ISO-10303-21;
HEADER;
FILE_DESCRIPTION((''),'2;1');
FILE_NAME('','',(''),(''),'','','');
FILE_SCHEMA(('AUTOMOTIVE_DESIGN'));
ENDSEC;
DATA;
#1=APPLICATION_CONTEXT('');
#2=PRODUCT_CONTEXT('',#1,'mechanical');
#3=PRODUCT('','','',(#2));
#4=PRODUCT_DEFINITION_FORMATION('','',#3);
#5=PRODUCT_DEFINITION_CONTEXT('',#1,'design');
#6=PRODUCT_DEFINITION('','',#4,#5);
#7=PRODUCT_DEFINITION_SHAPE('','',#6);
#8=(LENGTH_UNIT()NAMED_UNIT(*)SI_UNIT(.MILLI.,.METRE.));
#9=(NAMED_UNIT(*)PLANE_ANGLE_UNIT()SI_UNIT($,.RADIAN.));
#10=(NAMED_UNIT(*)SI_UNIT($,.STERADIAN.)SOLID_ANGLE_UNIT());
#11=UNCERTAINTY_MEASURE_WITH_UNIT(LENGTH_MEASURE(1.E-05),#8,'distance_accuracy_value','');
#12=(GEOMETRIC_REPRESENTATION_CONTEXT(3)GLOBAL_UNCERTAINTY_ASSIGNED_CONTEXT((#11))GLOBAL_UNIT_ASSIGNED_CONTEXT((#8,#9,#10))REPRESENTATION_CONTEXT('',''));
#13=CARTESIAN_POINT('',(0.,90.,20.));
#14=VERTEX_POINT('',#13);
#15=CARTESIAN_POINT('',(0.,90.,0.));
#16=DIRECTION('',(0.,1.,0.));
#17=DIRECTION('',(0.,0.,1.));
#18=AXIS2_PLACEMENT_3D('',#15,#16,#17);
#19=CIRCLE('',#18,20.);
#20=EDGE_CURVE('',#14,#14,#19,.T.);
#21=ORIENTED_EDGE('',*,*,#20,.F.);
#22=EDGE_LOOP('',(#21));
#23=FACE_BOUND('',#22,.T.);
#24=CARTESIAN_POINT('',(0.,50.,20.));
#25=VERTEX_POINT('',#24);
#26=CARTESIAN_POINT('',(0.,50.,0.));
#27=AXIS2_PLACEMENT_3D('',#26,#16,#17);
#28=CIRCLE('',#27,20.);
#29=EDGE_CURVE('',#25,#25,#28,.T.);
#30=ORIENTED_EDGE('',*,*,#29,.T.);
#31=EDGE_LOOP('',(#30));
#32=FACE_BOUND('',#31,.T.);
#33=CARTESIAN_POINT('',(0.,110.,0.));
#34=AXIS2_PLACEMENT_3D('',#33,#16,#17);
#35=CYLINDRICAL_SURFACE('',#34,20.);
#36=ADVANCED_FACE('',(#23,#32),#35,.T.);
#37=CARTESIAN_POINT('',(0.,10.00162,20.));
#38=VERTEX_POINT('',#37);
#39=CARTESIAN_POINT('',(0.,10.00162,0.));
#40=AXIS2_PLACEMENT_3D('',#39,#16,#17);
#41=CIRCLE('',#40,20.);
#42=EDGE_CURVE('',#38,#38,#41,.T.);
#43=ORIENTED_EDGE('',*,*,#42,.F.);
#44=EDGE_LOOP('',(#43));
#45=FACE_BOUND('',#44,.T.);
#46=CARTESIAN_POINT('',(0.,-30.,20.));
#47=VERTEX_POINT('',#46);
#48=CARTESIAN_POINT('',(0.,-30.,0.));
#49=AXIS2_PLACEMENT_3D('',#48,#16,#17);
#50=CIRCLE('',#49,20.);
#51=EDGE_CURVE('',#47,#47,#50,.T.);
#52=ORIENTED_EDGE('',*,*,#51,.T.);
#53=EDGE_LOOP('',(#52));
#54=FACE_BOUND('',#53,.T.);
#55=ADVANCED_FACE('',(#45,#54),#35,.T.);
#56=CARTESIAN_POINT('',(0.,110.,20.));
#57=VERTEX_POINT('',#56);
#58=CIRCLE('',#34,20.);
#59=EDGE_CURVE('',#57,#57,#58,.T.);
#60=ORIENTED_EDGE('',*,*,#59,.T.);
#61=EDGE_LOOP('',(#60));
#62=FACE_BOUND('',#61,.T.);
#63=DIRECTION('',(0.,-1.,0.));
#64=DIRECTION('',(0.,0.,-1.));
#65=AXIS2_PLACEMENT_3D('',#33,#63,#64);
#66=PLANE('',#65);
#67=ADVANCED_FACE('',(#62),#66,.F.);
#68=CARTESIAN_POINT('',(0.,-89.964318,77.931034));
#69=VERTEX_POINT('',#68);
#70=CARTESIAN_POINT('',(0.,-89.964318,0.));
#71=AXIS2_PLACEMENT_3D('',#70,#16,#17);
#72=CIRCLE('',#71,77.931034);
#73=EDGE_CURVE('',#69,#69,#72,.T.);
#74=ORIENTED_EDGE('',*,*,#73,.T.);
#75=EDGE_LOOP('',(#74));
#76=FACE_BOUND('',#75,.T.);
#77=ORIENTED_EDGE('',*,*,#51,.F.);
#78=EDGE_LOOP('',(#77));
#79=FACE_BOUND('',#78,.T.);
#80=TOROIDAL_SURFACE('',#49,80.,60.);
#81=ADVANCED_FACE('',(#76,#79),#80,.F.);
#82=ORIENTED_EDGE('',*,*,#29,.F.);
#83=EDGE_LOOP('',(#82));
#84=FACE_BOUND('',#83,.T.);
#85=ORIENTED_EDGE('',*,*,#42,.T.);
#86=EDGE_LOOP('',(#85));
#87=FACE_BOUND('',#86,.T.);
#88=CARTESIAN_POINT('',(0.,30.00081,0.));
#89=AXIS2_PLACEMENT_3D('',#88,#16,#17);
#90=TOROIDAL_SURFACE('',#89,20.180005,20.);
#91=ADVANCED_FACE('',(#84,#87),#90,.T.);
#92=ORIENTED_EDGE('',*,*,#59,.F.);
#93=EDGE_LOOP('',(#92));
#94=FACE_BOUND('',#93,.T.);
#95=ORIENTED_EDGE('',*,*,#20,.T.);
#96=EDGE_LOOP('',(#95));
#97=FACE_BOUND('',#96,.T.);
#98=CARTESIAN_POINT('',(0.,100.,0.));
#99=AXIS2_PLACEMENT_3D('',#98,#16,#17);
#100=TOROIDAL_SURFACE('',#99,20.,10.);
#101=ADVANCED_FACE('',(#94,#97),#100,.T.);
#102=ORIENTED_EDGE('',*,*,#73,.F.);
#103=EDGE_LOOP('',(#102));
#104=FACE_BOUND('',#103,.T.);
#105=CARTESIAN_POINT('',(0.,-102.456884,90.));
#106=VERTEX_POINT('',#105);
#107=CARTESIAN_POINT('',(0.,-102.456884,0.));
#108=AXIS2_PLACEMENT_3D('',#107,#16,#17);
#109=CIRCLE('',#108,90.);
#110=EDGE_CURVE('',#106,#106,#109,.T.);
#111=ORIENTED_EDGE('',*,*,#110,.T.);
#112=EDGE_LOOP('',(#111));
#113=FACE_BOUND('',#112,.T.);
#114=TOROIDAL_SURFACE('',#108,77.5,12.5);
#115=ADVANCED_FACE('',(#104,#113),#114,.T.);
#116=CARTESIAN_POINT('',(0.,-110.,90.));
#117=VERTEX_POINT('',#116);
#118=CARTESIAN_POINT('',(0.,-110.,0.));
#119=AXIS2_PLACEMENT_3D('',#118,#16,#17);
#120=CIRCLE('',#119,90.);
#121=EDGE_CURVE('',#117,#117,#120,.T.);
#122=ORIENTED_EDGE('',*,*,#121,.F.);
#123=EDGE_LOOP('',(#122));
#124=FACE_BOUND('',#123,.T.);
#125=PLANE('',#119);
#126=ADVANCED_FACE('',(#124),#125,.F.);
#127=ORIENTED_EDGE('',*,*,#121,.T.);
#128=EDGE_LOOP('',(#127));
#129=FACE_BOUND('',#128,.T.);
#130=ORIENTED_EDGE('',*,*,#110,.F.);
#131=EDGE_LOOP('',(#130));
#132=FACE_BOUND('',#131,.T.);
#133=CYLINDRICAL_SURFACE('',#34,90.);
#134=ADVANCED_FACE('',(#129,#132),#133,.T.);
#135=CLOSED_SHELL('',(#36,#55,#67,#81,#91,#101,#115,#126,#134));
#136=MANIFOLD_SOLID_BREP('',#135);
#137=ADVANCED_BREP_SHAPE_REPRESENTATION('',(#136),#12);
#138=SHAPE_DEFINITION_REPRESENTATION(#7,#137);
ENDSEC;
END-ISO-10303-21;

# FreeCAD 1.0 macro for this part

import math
import FreeCAD as App
import Part
import Sketcher
from FreeCAD import Vector
Q = App.Units.Quantity

doc = App.newDocument("Part")
body = doc.addObject("PartDesign::Body", "Body")

# Sketch on XY plane
sketch1 = body.newObject("Sketcher::SketchObject", "Sketch")
sketch1.AttachmentSupport = (doc.getObject("XY_Plane"), [""])
sketch1.MapMode = "FlatFace"
sketch1.addGeometry([
    Part.LineSegment(Vector(0, 110, 0), Vector(0, -110, 0)),  # 0
    Part.LineSegment(Vector(0, -110, 0), Vector(90, -110, 0)),  # 1
    Part.LineSegment(Vector(90, -110, 0), Vector(90, -102.456884, 0)),  # 2
    Part.ArcOfCircle(Part.Circle(Vector(77.5, -102.456884, 0), Vector(0, 0, 1), 12.5), math.radians(0), math.radians(88.023892)),  # 3
    Part.ArcOfCircle(Part.Circle(Vector(80, -30, 0), Vector(0, 0, 1), 60), math.radians(180), math.radians(268.023892)),  # 4
    Part.LineSegment(Vector(20, -30, 0), Vector(20, 10.00162, 0)),  # 5
    Part.ArcOfCircle(Part.Circle(Vector(20.180005, 30.00081, 0), Vector(0, 0, 1), 20), math.radians(-90.515683), math.radians(90.515683)),  # 6
    Part.LineSegment(Vector(20, 50, 0), Vector(20, 90, 0)),  # 7
    Part.ArcOfCircle(Part.Circle(Vector(20, 100, 0), Vector(0, 0, 1), 10), math.radians(-90), math.radians(90)),  # 8
    Part.LineSegment(Vector(20, 110, 0), Vector(0, 110, 0)),  # 9
], False)
sketch1.addConstraint([
    Sketcher.Constraint("Coincident", 0, 2, 1, 1),
    Sketcher.Constraint("Coincident", 1, 2, 2, 1),
    Sketcher.Constraint("Tangent", 2, 2, 3, 1),
    Sketcher.Constraint("Tangent", 3, 2, 4, 2),
    Sketcher.Constraint("Tangent", 4, 1, 5, 1),
    Sketcher.Constraint("Coincident", 5, 2, 6, 1),
    Sketcher.Constraint("Coincident", 6, 2, 7, 1),
    Sketcher.Constraint("Coincident", 7, 2, 8, 1),
    Sketcher.Constraint("Tangent", 8, 2, 9, 1),
    Sketcher.Constraint("Coincident", 9, 2, 0, 1),
    Sketcher.Constraint("Vertical", 0),
    Sketcher.Constraint("Horizontal", 1),
    Sketcher.Constraint("Vertical", 2),
    Sketcher.Constraint("Vertical", 5),
    Sketcher.Constraint("Vertical", 7),
    Sketcher.Constraint("Horizontal", 9),
    Sketcher.Constraint("Symmetric", 0, 2, 9, 2, -1, 1),
    Sketcher.Constraint("Vertical", 8, 3, 4, 1),
    Sketcher.Constraint("Vertical", 5, 2, 6, 2),
    Sketcher.Constraint("Radius", 4, Q("60 mm")),
    Sketcher.Constraint("Radius", 6, Q("20 mm")),
    Sketcher.Constraint("Radius", 8, Q("10 mm")),
    Sketcher.Constraint("Radius", 3, Q("12.5 mm")),
    Sketcher.Constraint("DistanceX", 1, 1, 1, 2, Q("90 mm")),
    Sketcher.Constraint("DistanceX", 9, 2, 9, 1, Q("20 mm")),
    Sketcher.Constraint("DistanceY", 0, 2, 0, 1, Q("220 mm")),
    Sketcher.Constraint("DistanceY", 7, 1, 7, 2, Q("40 mm")),
    Sketcher.Constraint("DistanceY", 4, 3, -1, 1, Q("30 mm")),
    Sketcher.Constraint("DistanceY", 5, 1, 5, 2, Q("40.00162 mm")),
])
revolution = body.newObject("PartDesign::Revolution", "Revolution")
revolution.Profile = sketch1
revolution.ReferenceAxis = (sketch1, ["V_Axis"])
revolution.Angle = 360

doc.recompute()
